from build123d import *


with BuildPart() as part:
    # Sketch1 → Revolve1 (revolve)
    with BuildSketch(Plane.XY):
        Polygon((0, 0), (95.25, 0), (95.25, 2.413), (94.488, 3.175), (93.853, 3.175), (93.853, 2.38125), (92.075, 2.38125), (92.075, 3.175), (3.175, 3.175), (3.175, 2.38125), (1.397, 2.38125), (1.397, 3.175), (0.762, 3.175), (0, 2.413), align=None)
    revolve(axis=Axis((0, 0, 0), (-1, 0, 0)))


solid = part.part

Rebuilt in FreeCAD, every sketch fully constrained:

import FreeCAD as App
import Part
import Sketcher

V = App.Vector
Q = App.Units.Quantity

doc = App.newDocument("Part")
body = doc.addObject("PartDesign::Body", "Body")

# Sketch on XY plane
sketch1 = body.newObject("Sketcher::SketchObject", "Sketch")
sketch1.AttachmentSupport = (doc.getObject("XY_Plane"), [""])
sketch1.MapMode = "FlatFace"
sketch1.addGeometry([
    Part.LineSegment(V(0, 0, 0), V(95.25, 0, 0)),  # 0
    Part.LineSegment(V(95.25, 0, 0), V(95.25, 2.413, 0)),  # 1
    Part.LineSegment(V(95.25, 2.413, 0), V(94.488, 3.175, 0)),  # 2
    Part.LineSegment(V(94.488, 3.175, 0), V(93.853, 3.175, 0)),  # 3
    Part.LineSegment(V(93.853, 3.175, 0), V(93.853, 2.38125, 0)),  # 4
    Part.LineSegment(V(93.853, 2.38125, 0), V(92.075, 2.38125, 0)),  # 5
    Part.LineSegment(V(92.075, 2.38125, 0), V(92.075, 3.175, 0)),  # 6
    Part.LineSegment(V(92.075, 3.175, 0), V(3.175, 3.175, 0)),  # 7
    Part.LineSegment(V(3.175, 3.175, 0), V(3.175, 2.38125, 0)),  # 8
    Part.LineSegment(V(3.175, 2.38125, 0), V(1.397, 2.38125, 0)),  # 9
    Part.LineSegment(V(1.397, 2.38125, 0), V(1.397, 3.175, 0)),  # 10
    Part.LineSegment(V(1.397, 3.175, 0), V(0.762, 3.175, 0)),  # 11
    Part.LineSegment(V(0.762, 3.175, 0), V(0, 2.413, 0)),  # 12
    Part.LineSegment(V(0, 2.413, 0), V(0, 0, 0)),  # 13
], False)
sketch1.addConstraint([
    Sketcher.Constraint("Coincident", 0, 2, 1, 1),
    Sketcher.Constraint("Coincident", 1, 2, 2, 1),
    Sketcher.Constraint("Coincident", 2, 2, 3, 1),
    Sketcher.Constraint("Coincident", 3, 2, 4, 1),
    Sketcher.Constraint("Coincident", 4, 2, 5, 1),
    Sketcher.Constraint("Coincident", 5, 2, 6, 1),
    Sketcher.Constraint("Coincident", 6, 2, 7, 1),
    Sketcher.Constraint("Coincident", 7, 2, 8, 1),
    Sketcher.Constraint("Coincident", 8, 2, 9, 1),
    Sketcher.Constraint("Coincident", 9, 2, 10, 1),
    Sketcher.Constraint("Coincident", 10, 2, 11, 1),
    Sketcher.Constraint("Coincident", 11, 2, 12, 1),
    Sketcher.Constraint("Coincident", 12, 2, 13, 1),
    Sketcher.Constraint("Coincident", 13, 2, 0, 1),
    Sketcher.Constraint("Horizontal", 0),
    Sketcher.Constraint("Vertical", 1),
    Sketcher.Constraint("Horizontal", 3),
    Sketcher.Constraint("Vertical", 4),
    Sketcher.Constraint("Horizontal", 5),
    Sketcher.Constraint("Vertical", 6),
    Sketcher.Constraint("Horizontal", 7),
    Sketcher.Constraint("Vertical", 8),
    Sketcher.Constraint("Horizontal", 9),
    Sketcher.Constraint("Vertical", 10),
    Sketcher.Constraint("Horizontal", 11),
    Sketcher.Constraint("Vertical", 13),
    Sketcher.Constraint("Coincident", 13, 2, -1, 1),
    Sketcher.Constraint("Perpendicular", 2, 12),
    Sketcher.Constraint("Horizontal", 3, 2, 6, 2),
    Sketcher.Constraint("Horizontal", 5, 2, 8, 2),
    Sketcher.Constraint("Horizontal", 7, 2, 10, 2),
    Sketcher.Constraint("Horizontal", 1, 2, 12, 2),
    Sketcher.Constraint("Equal", 5, 9),
    Sketcher.Constraint("Equal", 3, 11),
    Sketcher.Constraint("Equal", 2, 12),
    Sketcher.Constraint("DistanceX", 7, 2, 7, 1, Q("3.5 in")),
    Sketcher.Constraint("DistanceX", 0, 1, 0, 2, Q("3.75 in")),
    Sketcher.Constraint("DistanceX", 5, 2, 5, 1, Q("0.07 in")),
    Sketcher.Constraint("DistanceX", 3, 2, 3, 1, Q("0.025 in")),
    Sketcher.Constraint("DistanceY", 1, 1, 1, 2, Q("0.095 in")),
    Sketcher.Constraint("DistanceY", 4, 2, 4, 1, Q("0.03125 in")),
])
revolution = body.newObject("PartDesign::Revolution", "Revolution")
revolution.Profile = sketch1
revolution.ReferenceAxis = (sketch1, ["H_Axis"])
revolution.Angle = 360

doc.recompute()
